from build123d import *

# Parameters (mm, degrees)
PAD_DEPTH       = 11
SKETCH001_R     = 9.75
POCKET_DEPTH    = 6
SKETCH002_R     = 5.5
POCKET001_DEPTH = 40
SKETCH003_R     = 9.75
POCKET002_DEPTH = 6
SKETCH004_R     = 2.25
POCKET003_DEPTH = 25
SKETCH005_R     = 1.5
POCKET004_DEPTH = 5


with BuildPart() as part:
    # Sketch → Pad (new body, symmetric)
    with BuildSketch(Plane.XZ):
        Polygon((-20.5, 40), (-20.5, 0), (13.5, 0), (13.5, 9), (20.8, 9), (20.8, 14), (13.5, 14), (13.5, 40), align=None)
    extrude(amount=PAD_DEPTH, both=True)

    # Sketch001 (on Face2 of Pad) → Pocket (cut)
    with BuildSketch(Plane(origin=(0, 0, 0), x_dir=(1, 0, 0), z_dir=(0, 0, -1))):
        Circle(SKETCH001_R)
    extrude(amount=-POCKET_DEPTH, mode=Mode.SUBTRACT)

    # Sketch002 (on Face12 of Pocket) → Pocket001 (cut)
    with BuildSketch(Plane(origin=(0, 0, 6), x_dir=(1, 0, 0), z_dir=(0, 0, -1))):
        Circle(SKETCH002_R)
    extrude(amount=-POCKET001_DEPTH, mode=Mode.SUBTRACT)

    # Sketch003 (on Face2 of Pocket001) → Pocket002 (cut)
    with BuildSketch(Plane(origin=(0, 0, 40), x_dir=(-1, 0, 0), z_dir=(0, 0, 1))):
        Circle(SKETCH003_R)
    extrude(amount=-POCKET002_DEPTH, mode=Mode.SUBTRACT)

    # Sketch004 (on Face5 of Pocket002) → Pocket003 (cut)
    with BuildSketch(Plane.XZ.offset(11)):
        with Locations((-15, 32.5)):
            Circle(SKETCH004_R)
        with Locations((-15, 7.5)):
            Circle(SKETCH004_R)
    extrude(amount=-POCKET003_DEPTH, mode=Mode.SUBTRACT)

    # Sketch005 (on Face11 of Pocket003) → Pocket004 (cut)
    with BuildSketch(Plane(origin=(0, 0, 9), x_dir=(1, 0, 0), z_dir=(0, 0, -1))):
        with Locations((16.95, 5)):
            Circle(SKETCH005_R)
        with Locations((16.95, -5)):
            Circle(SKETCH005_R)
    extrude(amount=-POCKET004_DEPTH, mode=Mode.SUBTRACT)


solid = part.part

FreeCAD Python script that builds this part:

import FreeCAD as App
import Part
import Sketcher
from FreeCAD import Vector

doc = App.newDocument("Part")
params = doc.addObject("Spreadsheet::Sheet", "Params")
for row, (alias, value) in enumerate([
    ("sketch1_width", "34 mm"),
    ("sketch1_height", "40 mm"),
    ("sketch1_height2", "9 mm"),
    ("sketch1_height3", "5 mm"),
    ("sketch1_width2", "7.3 mm"),
    ("pad1_length", "22 mm"),
    ("sketch2_diameter", "19.5 mm"),
    ("pocket1_length", "6 mm"),
    ("sketch3_diameter", "11 mm"),
    ("pocket2_length", "40 mm"),
    ("sketch4_diameter", "19.5 mm"),
    ("pocket3_length", "6 mm"),
    ("sketch5_diameter", "4.5 mm"),
    ("pocket4_length", "25 mm"),
    ("sketch6_diameter", "3 mm"),
    ("pocket5_length", "5 mm"),
], start=1):
    params.set(f"A{row}", alias)
    params.set(f"B{row}", "=" + value)
    params.setAlias(f"B{row}", alias)

body = doc.addObject("PartDesign::Body", "Body")

sketch1 = body.newObject("Sketcher::SketchObject", "Sketch")
sketch1.AttachmentSupport = (doc.getObject("XZ_Plane"), [""])
sketch1.MapMode = "FlatFace"
sketch1.addGeometry([
    Part.LineSegment(Vector(-20, 40, 0), Vector(-20, 0, 0)),
    Part.LineSegment(Vector(-20, 0, 0), Vector(14, 0, 0)),
    Part.LineSegment(Vector(14, 0, 0), Vector(14, 9, 0)),
    Part.LineSegment(Vector(14, 9, 0), Vector(21, 9, 0)),
    Part.LineSegment(Vector(21, 9, 0), Vector(21, 14, 0)),
    Part.LineSegment(Vector(21, 14, 0), Vector(14, 14, 0)),
    Part.LineSegment(Vector(14, 14, 0), Vector(14, 40, 0)),
    Part.LineSegment(Vector(14, 40, 0), Vector(-20, 40, 0)),
], False)
sketch1.addConstraint([
    Sketcher.Constraint("Coincident", 0, 2, 1, 1),
    Sketcher.Constraint("Coincident", 1, 2, 2, 1),
    Sketcher.Constraint("Coincident", 2, 2, 3, 1),
    Sketcher.Constraint("Coincident", 3, 2, 4, 1),
    Sketcher.Constraint("Coincident", 4, 2, 5, 1),
    Sketcher.Constraint("Coincident", 5, 2, 6, 1),
    Sketcher.Constraint("Coincident", 6, 2, 7, 1),
    Sketcher.Constraint("Coincident", 7, 2, 0, 1),
    Sketcher.Constraint("Vertical", 0),
    Sketcher.Constraint("Horizontal", 1),
    Sketcher.Constraint("Vertical", 2),
    Sketcher.Constraint("Horizontal", 3),
    Sketcher.Constraint("Vertical", 4),
    Sketcher.Constraint("Horizontal", 5),
    Sketcher.Constraint("Vertical", 6),
    Sketcher.Constraint("Horizontal", 7),
    Sketcher.Constraint("PointOnObject", 0, 2, -1),
    Sketcher.Constraint("Vertical", 2, 2, 5, 2),
    Sketcher.Constraint("DistanceX", 1, 1, 1, 2, 34.0),
    Sketcher.Constraint("DistanceY", 0, 2, 0, 1, 40.0),
    Sketcher.Constraint("DistanceY", 2, 1, 2, 2, 9.0),
    Sketcher.Constraint("DistanceY", 4, 1, 4, 2, 5.0),
    Sketcher.Constraint("DistanceX", 3, 1, 3, 2, 7.3),
    Sketcher.Constraint("DistanceX", 0, 2, -1, 1, 20.5),
])
sketch1.setExpression("Constraints[18]", "Params.sketch1_width")
sketch1.setExpression("Constraints[19]", "Params.sketch1_height")
sketch1.setExpression("Constraints[20]", "Params.sketch1_height2")
sketch1.setExpression("Constraints[21]", "Params.sketch1_height3")
sketch1.setExpression("Constraints[22]", "Params.sketch1_width2")
pad1 = body.newObject("PartDesign::Pad", "Pad")
pad1.Profile = sketch1
pad1.setExpression("Length", "Params.pad1_length")
pad1.Midplane = True

sketch2 = body.newObject("Sketcher::SketchObject", "Sketch001")
sketch2.AttachmentSupport = (doc.getObject("XY_Plane"), [""])
sketch2.MapMode = "FlatFace"
sketch2.addGeometry(Part.Circle(Vector(0, 0, 0), Vector(0, 0, 1), 10), False)
sketch2.addConstraint([
    Sketcher.Constraint("Coincident", 0, 3, -1, 1),
    Sketcher.Constraint("Diameter", 0, 19.5),
])
sketch2.setExpression("Constraints[1]", "Params.sketch2_diameter")
pocket1 = body.newObject("PartDesign::Pocket", "Pocket")
pocket1.Profile = sketch2
pocket1.setExpression("Length", "Params.pocket1_length")
pocket1.Reversed = True

sketch3 = body.newObject("Sketcher::SketchObject", "Sketch002")
sketch3.AttachmentSupport = (doc.getObject("XY_Plane"), [""])
sketch3.MapMode = "FlatFace"
sketch3.AttachmentOffset = App.Placement(Vector(0, 0, 6), App.Rotation())
sketch3.addGeometry(Part.Circle(Vector(0, 0, 0), Vector(0, 0, 1), 6), False)
sketch3.addConstraint([
    Sketcher.Constraint("Coincident", 0, 3, -1, 1),
    Sketcher.Constraint("Diameter", 0, 11.0),
])
sketch3.setExpression("Constraints[1]", "Params.sketch3_diameter")
pocket2 = body.newObject("PartDesign::Pocket", "Pocket001")
pocket2.Profile = sketch3
pocket2.setExpression("Length", "Params.pocket2_length")
pocket2.Reversed = True

sketch4 = body.newObject("Sketcher::SketchObject", "Sketch003")
sketch4.AttachmentSupport = (doc.getObject("XY_Plane"), [""])
sketch4.MapMode = "FlatFace"
sketch4.AttachmentOffset = App.Placement(Vector(0, 0, 40), App.Rotation())
sketch4.addGeometry(Part.Circle(Vector(0, 0, 0), Vector(0, 0, 1), 10), False)
sketch4.addConstraint([
    Sketcher.Constraint("Coincident", 0, 3, -1, 1),
    Sketcher.Constraint("Diameter", 0, 19.5),
])
sketch4.setExpression("Constraints[1]", "Params.sketch4_diameter")
pocket3 = body.newObject("PartDesign::Pocket", "Pocket002")
pocket3.Profile = sketch4
pocket3.setExpression("Length", "Params.pocket3_length")

sketch5 = body.newObject("Sketcher::SketchObject", "Sketch004")
sketch5.AttachmentSupport = (doc.getObject("XZ_Plane"), [""])
sketch5.MapMode = "FlatFace"
sketch5.AttachmentOffset = App.Placement(Vector(0, 0, 11), App.Rotation())
sketch5.addGeometry([
    Part.Circle(Vector(-15, 32.5, 0), Vector(0, 0, 1), 2.2),
    Part.Circle(Vector(-15, 7.5, 0), Vector(0, 0, 1), 2.2),
], False)
sketch5.addConstraint([
    Sketcher.Constraint("Equal", 0, 1),
    Sketcher.Constraint("Vertical", 0, 3, 1, 3),
    Sketcher.Constraint("Diameter", 0, 4.5),
    Sketcher.Constraint("DistanceX", 0, 3, -1, 1, 15.0),
    Sketcher.Constraint("DistanceY", 1, 3, 0, 3, 25.0),
    Sketcher.Constraint("DistanceY", -1, 1, 0, 3, 32.5),
])
sketch5.setExpression("Constraints[2]", "Params.sketch5_diameter")
pocket4 = body.newObject("PartDesign::Pocket", "Pocket003")
pocket4.Profile = sketch5
pocket4.setExpression("Length", "Params.pocket4_length")

sketch6 = body.newObject("Sketcher::SketchObject", "Sketch005")
sketch6.AttachmentSupport = (doc.getObject("XY_Plane"), [""])
sketch6.MapMode = "FlatFace"
sketch6.AttachmentOffset = App.Placement(Vector(0, 0, 9), App.Rotation())
sketch6.addGeometry([
    Part.Circle(Vector(16.9, -5, 0), Vector(0, 0, 1), 1.5),
    Part.Circle(Vector(16.9, 5, 0), Vector(0, 0, 1), 1.5),
], False)
sketch6.addConstraint([
    Sketcher.Constraint("Equal", 0, 1),
    Sketcher.Constraint("Symmetric", 0, 3, 1, 3, -1),
    Sketcher.Constraint("Diameter", 0, 3.0),
    Sketcher.Constraint("DistanceY", 0, 3, -1, 1, 5.0),
    Sketcher.Constraint("DistanceX", -1, 1, 0, 3, 16.95),
])
sketch6.setExpression("Constraints[2]", "Params.sketch6_diameter")
pocket5 = body.newObject("PartDesign::Pocket", "Pocket004")
pocket5.Profile = sketch6
pocket5.setExpression("Length", "Params.pocket5_length")
pocket5.Reversed = True

doc.recompute()
